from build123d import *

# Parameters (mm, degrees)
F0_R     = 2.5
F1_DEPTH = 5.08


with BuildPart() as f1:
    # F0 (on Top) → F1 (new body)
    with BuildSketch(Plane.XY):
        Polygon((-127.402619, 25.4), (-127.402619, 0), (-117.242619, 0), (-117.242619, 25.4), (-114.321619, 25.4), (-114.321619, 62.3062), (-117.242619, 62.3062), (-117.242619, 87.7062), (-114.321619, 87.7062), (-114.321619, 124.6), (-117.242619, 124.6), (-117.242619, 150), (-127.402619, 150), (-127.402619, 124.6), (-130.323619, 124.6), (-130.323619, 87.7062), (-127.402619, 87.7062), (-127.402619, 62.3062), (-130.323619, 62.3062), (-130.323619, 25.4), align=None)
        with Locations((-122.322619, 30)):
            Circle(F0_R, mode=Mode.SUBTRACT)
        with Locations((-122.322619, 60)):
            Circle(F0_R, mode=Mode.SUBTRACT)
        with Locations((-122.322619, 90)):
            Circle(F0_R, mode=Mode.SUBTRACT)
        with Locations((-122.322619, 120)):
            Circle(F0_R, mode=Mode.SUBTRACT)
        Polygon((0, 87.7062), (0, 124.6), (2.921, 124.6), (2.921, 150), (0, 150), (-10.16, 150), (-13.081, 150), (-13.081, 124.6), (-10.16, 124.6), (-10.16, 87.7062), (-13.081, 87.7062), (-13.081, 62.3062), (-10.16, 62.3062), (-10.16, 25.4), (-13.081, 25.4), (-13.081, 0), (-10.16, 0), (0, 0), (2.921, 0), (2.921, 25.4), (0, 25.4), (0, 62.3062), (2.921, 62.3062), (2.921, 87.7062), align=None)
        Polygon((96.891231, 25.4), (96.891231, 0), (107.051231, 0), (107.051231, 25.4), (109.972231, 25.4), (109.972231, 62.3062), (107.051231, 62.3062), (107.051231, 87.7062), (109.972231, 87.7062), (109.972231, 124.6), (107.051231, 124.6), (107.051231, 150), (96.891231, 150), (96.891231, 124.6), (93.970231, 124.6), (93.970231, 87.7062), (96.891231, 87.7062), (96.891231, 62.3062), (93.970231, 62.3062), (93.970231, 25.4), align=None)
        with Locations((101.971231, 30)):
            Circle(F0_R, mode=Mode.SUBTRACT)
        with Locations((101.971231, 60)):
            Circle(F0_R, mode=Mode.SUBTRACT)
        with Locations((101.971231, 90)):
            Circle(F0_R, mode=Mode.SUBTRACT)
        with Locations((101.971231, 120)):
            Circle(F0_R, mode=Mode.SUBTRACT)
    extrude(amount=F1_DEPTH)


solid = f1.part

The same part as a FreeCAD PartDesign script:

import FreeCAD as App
import Part
import Sketcher
Q = App.Units.Quantity

doc = App.newDocument("Part")
params = doc.addObject("Spreadsheet::Sheet", "Params")
for row, (alias, value) in enumerate([
    ("sketch1_height", "1 in"),
    ("sketch1_width", "0.4 in"),
    ("sketch1_width2", "0.63 in"),
    ("sketch1_height2", "1.453 in"),
    ("pad1_length", "0.2 in"),
], start=1):
    params.set(f"A{row}", alias)
    params.set(f"B{row}", "=" + value)
    params.setAlias(f"B{row}", alias)

body = doc.addObject("PartDesign::Body", "Body")
body.AllowCompound = True

# Sketch on XY plane
sketch1 = body.newObject("Sketcher::SketchObject", "Sketch")
sketch1.AttachmentSupport = (doc.getObject("XY_Plane"), [""])
sketch1.MapMode = "FlatFace"
sketch1.addGeometry(Part.LineSegment(App.Vector(-127.4, 25.4, 0), App.Vector(-127.4, 0, 0)), False)
sketch1.addGeometry(Part.LineSegment(App.Vector(-127.4, 0, 0), App.Vector(-117.2, 0, 0)), False)
sketch1.addGeometry(Part.LineSegment(App.Vector(-117.2, 0, 0), App.Vector(-117.2, 25.4, 0)), False)
sketch1.addGeometry(Part.LineSegment(App.Vector(-117.2, 25.4, 0), App.Vector(-114.3, 25.4, 0)), False)
sketch1.addGeometry(Part.LineSegment(App.Vector(-114.3, 25.4, 0), App.Vector(-114.3, 62.3, 0)), False)
sketch1.addGeometry(Part.LineSegment(App.Vector(-114.3, 62.3, 0), App.Vector(-117.2, 62.3, 0)), False)
sketch1.addGeometry(Part.LineSegment(App.Vector(-117.2, 62.3, 0), App.Vector(-117.2, 87.7, 0)), False)
sketch1.addGeometry(Part.LineSegment(App.Vector(-117.2, 87.7, 0), App.Vector(-114.3, 87.7, 0)), False)
sketch1.addGeometry(Part.LineSegment(App.Vector(-114.3, 87.7, 0), App.Vector(-114.3, 124.6, 0)), False)
sketch1.addGeometry(Part.LineSegment(App.Vector(-114.3, 124.6, 0), App.Vector(-117.2, 124.6, 0)), False)
sketch1.addGeometry(Part.LineSegment(App.Vector(-117.2, 124.6, 0), App.Vector(-117.2, 150, 0)), False)
sketch1.addGeometry(Part.LineSegment(App.Vector(-117.2, 150, 0), App.Vector(-127.4, 150, 0)), False)
sketch1.addGeometry(Part.LineSegment(App.Vector(-127.4, 150, 0), App.Vector(-127.4, 124.6, 0)), False)
sketch1.addGeometry(Part.LineSegment(App.Vector(-127.4, 124.6, 0), App.Vector(-130.3, 124.6, 0)), False)
sketch1.addGeometry(Part.LineSegment(App.Vector(-130.3, 124.6, 0), App.Vector(-130.3, 87.7, 0)), False)
sketch1.addGeometry(Part.LineSegment(App.Vector(-130.3, 87.7, 0), App.Vector(-127.4, 87.7, 0)), False)
sketch1.addGeometry(Part.LineSegment(App.Vector(-127.4, 87.7, 0), App.Vector(-127.4, 62.3, 0)), False)
sketch1.addGeometry(Part.LineSegment(App.Vector(-127.4, 62.3, 0), App.Vector(-130.3, 62.3, 0)), False)
sketch1.addGeometry(Part.LineSegment(App.Vector(-130.3, 62.3, 0), App.Vector(-130.3, 25.4, 0)), False)
sketch1.addGeometry(Part.LineSegment(App.Vector(-130.3, 25.4, 0), App.Vector(-127.4, 25.4, 0)), False)
sketch1.addGeometry(Part.Circle(App.Vector(-122.3, 30, 0), App.Vector(0, 0, 1), 2.5), False)
sketch1.addGeometry(Part.Circle(App.Vector(-122.3, 60, 0), App.Vector(0, 0, 1), 2.5), False)
sketch1.addGeometry(Part.Circle(App.Vector(-122.3, 90, 0), App.Vector(0, 0, 1), 2.5), False)
sketch1.addGeometry(Part.Circle(App.Vector(-122.3, 120, 0), App.Vector(0, 0, 1), 2.5), False)
sketch1.addGeometry(Part.LineSegment(App.Vector(0, 87.7, 0), App.Vector(0, 124.6, 0)), False)
sketch1.addGeometry(Part.LineSegment(App.Vector(0, 124.6, 0), App.Vector(2.9, 124.6, 0)), False)
sketch1.addGeometry(Part.LineSegment(App.Vector(2.9, 124.6, 0), App.Vector(2.9, 150, 0)), False)
sketch1.addGeometry(Part.LineSegment(App.Vector(2.9, 150, 0), App.Vector(-13.1, 150, 0)), False)
sketch1.addGeometry(Part.LineSegment(App.Vector(-13.1, 150, 0), App.Vector(-13.1, 124.6, 0)), False)
sketch1.addGeometry(Part.LineSegment(App.Vector(-13.1, 124.6, 0), App.Vector(-10.2, 124.6, 0)), False)
sketch1.addGeometry(Part.LineSegment(App.Vector(-10.2, 124.6, 0), App.Vector(-10.2, 87.7, 0)), False)
sketch1.addGeometry(Part.LineSegment(App.Vector(-10.2, 87.7, 0), App.Vector(-13.1, 87.7, 0)), False)
sketch1.addGeometry(Part.LineSegment(App.Vector(-13.1, 87.7, 0), App.Vector(-13.1, 62.3, 0)), False)
sketch1.addGeometry(Part.LineSegment(App.Vector(-13.1, 62.3, 0), App.Vector(-10.2, 62.3, 0)), False)
sketch1.addGeometry(Part.LineSegment(App.Vector(-10.2, 62.3, 0), App.Vector(-10.2, 25.4, 0)), False)
sketch1.addGeometry(Part.LineSegment(App.Vector(-10.2, 25.4, 0), App.Vector(-13.1, 25.4, 0)), False)
sketch1.addGeometry(Part.LineSegment(App.Vector(-13.1, 25.4, 0), App.Vector(-13.1, 0, 0)), False)
sketch1.addGeometry(Part.LineSegment(App.Vector(-13.1, 0, 0), App.Vector(2.9, 0, 0)), False)
sketch1.addGeometry(Part.LineSegment(App.Vector(2.9, 0, 0), App.Vector(2.9, 25.4, 0)), False)
sketch1.addGeometry(Part.LineSegment(App.Vector(2.9, 25.4, 0), App.Vector(0, 25.4, 0)), False)
sketch1.addGeometry(Part.LineSegment(App.Vector(0, 25.4, 0), App.Vector(0, 62.3, 0)), False)
sketch1.addGeometry(Part.LineSegment(App.Vector(0, 62.3, 0), App.Vector(2.9, 62.3, 0)), False)
sketch1.addGeometry(Part.LineSegment(App.Vector(2.9, 62.3, 0), App.Vector(2.9, 87.7, 0)), False)
sketch1.addGeometry(Part.LineSegment(App.Vector(2.9, 87.7, 0), App.Vector(0, 87.7, 0)), False)
sketch1.addGeometry(Part.LineSegment(App.Vector(96.9, 25.4, 0), App.Vector(96.9, 0, 0)), False)
sketch1.addGeometry(Part.LineSegment(App.Vector(96.9, 0, 0), App.Vector(107.1, 0, 0)), False)
sketch1.addGeometry(Part.LineSegment(App.Vector(107.1, 0, 0), App.Vector(107.1, 25.4, 0)), False)
sketch1.addGeometry(Part.LineSegment(App.Vector(107.1, 25.4, 0), App.Vector(110, 25.4, 0)), False)
sketch1.addGeometry(Part.LineSegment(App.Vector(110, 25.4, 0), App.Vector(110, 62.3, 0)), False)
sketch1.addGeometry(Part.LineSegment(App.Vector(110, 62.3, 0), App.Vector(107.1, 62.3, 0)), False)
sketch1.addGeometry(Part.LineSegment(App.Vector(107.1, 62.3, 0), App.Vector(107.1, 87.7, 0)), False)
sketch1.addGeometry(Part.LineSegment(App.Vector(107.1, 87.7, 0), App.Vector(110, 87.7, 0)), False)
sketch1.addGeometry(Part.LineSegment(App.Vector(110, 87.7, 0), App.Vector(110, 124.6, 0)), False)
sketch1.addGeometry(Part.LineSegment(App.Vector(110, 124.6, 0), App.Vector(107.1, 124.6, 0)), False)
sketch1.addGeometry(Part.LineSegment(App.Vector(107.1, 124.6, 0), App.Vector(107.1, 150, 0)), False)
sketch1.addGeometry(Part.LineSegment(App.Vector(107.1, 150, 0), App.Vector(96.9, 150, 0)), False)
sketch1.addGeometry(Part.LineSegment(App.Vector(96.9, 150, 0), App.Vector(96.9, 124.6, 0)), False)
sketch1.addGeometry(Part.LineSegment(App.Vector(96.9, 124.6, 0), App.Vector(94, 124.6, 0)), False)
sketch1.addGeometry(Part.LineSegment(App.Vector(94, 124.6, 0), App.Vector(94, 87.7, 0)), False)
sketch1.addGeometry(Part.LineSegment(App.Vector(94, 87.7, 0), App.Vector(96.9, 87.7, 0)), False)
sketch1.addGeometry(Part.LineSegment(App.Vector(96.9, 87.7, 0), App.Vector(96.9, 62.3, 0)), False)
sketch1.addGeometry(Part.LineSegment(App.Vector(96.9, 62.3, 0), App.Vector(94, 62.3, 0)), False)
sketch1.addGeometry(Part.LineSegment(App.Vector(94, 62.3, 0), App.Vector(94, 25.4, 0)), False)
sketch1.addGeometry(Part.LineSegment(App.Vector(94, 25.4, 0), App.Vector(96.9, 25.4, 0)), False)
sketch1.addGeometry(Part.Circle(App.Vector(102, 30, 0), App.Vector(0, 0, 1), 2.5), False)
sketch1.addGeometry(Part.Circle(App.Vector(102, 60, 0), App.Vector(0, 0, 1), 2.5), False)
sketch1.addGeometry(Part.Circle(App.Vector(102, 90, 0), App.Vector(0, 0, 1), 2.5), False)
sketch1.addGeometry(Part.Circle(App.Vector(102, 120, 0), App.Vector(0, 0, 1), 2.5), False)
sketch1.addConstraint(Sketcher.Constraint("Coincident", 0, 2, 1, 1))
sketch1.addConstraint(Sketcher.Constraint("Coincident", 1, 2, 2, 1))
sketch1.addConstraint(Sketcher.Constraint("Coincident", 2, 2, 3, 1))
sketch1.addConstraint(Sketcher.Constraint("Coincident", 3, 2, 4, 1))
sketch1.addConstraint(Sketcher.Constraint("Coincident", 4, 2, 5, 1))
sketch1.addConstraint(Sketcher.Constraint("Coincident", 5, 2, 6, 1))
sketch1.addConstraint(Sketcher.Constraint("Coincident", 6, 2, 7, 1))
sketch1.addConstraint(Sketcher.Constraint("Coincident", 7, 2, 8, 1))
sketch1.addConstraint(Sketcher.Constraint("Coincident", 8, 2, 9, 1))
sketch1.addConstraint(Sketcher.Constraint("Coincident", 9, 2, 10, 1))
sketch1.addConstraint(Sketcher.Constraint("Coincident", 10, 2, 11, 1))
sketch1.addConstraint(Sketcher.Constraint("Coincident", 11, 2, 12, 1))
sketch1.addConstraint(Sketcher.Constraint("Coincident", 12, 2, 13, 1))
sketch1.addConstraint(Sketcher.Constraint("Coincident", 13, 2, 14, 1))
sketch1.addConstraint(Sketcher.Constraint("Coincident", 14, 2, 15, 1))
sketch1.addConstraint(Sketcher.Constraint("Coincident", 15, 2, 16, 1))
sketch1.addConstraint(Sketcher.Constraint("Coincident", 16, 2, 17, 1))
sketch1.addConstraint(Sketcher.Constraint("Coincident", 17, 2, 18, 1))
sketch1.addConstraint(Sketcher.Constraint("Coincident", 18, 2, 19, 1))
sketch1.addConstraint(Sketcher.Constraint("Coincident", 19, 2, 0, 1))
sketch1.addConstraint(Sketcher.Constraint("Coincident", 24, 2, 25, 1))
sketch1.addConstraint(Sketcher.Constraint("Coincident", 25, 2, 26, 1))
sketch1.addConstraint(Sketcher.Constraint("Coincident", 26, 2, 27, 1))
sketch1.addConstraint(Sketcher.Constraint("Coincident", 27, 2, 28, 1))
sketch1.addConstraint(Sketcher.Constraint("Coincident", 28, 2, 29, 1))
sketch1.addConstraint(Sketcher.Constraint("Coincident", 29, 2, 30, 1))
sketch1.addConstraint(Sketcher.Constraint("Coincident", 30, 2, 31, 1))
sketch1.addConstraint(Sketcher.Constraint("Coincident", 31, 2, 32, 1))
sketch1.addConstraint(Sketcher.Constraint("Coincident", 32, 2, 33, 1))
sketch1.addConstraint(Sketcher.Constraint("Coincident", 33, 2, 34, 1))
sketch1.addConstraint(Sketcher.Constraint("Coincident", 34, 2, 35, 1))
sketch1.addConstraint(Sketcher.Constraint("Coincident", 35, 2, 36, 1))
sketch1.addConstraint(Sketcher.Constraint("Coincident", 36, 2, 37, 1))
sketch1.addConstraint(Sketcher.Constraint("Coincident", 37, 2, 38, 1))
sketch1.addConstraint(Sketcher.Constraint("Coincident", 38, 2, 39, 1))
sketch1.addConstraint(Sketcher.Constraint("Coincident", 39, 2, 40, 1))
sketch1.addConstraint(Sketcher.Constraint("Coincident", 40, 2, 41, 1))
sketch1.addConstraint(Sketcher.Constraint("Coincident", 41, 2, 42, 1))
sketch1.addConstraint(Sketcher.Constraint("Coincident", 42, 2, 43, 1))
sketch1.addConstraint(Sketcher.Constraint("Coincident", 43, 2, 24, 1))
sketch1.addConstraint(Sketcher.Constraint("Coincident", 44, 2, 45, 1))
sketch1.addConstraint(Sketcher.Constraint("Coincident", 45, 2, 46, 1))
sketch1.addConstraint(Sketcher.Constraint("Coincident", 46, 2, 47, 1))
sketch1.addConstraint(Sketcher.Constraint("Coincident", 47, 2, 48, 1))
sketch1.addConstraint(Sketcher.Constraint("Coincident", 48, 2, 49, 1))
sketch1.addConstraint(Sketcher.Constraint("Coincident", 49, 2, 50, 1))
sketch1.addConstraint(Sketcher.Constraint("Coincident", 50, 2, 51, 1))
sketch1.addConstraint(Sketcher.Constraint("Coincident", 51, 2, 52, 1))
sketch1.addConstraint(Sketcher.Constraint("Coincident", 52, 2, 53, 1))
sketch1.addConstraint(Sketcher.Constraint("Coincident", 53, 2, 54, 1))
sketch1.addConstraint(Sketcher.Constraint("Coincident", 54, 2, 55, 1))
sketch1.addConstraint(Sketcher.Constraint("Coincident", 55, 2, 56, 1))
sketch1.addConstraint(Sketcher.Constraint("Coincident", 56, 2, 57, 1))
sketch1.addConstraint(Sketcher.Constraint("Coincident", 57, 2, 58, 1))
sketch1.addConstraint(Sketcher.Constraint("Coincident", 58, 2, 59, 1))
sketch1.addConstraint(Sketcher.Constraint("Coincident", 59, 2, 60, 1))
sketch1.addConstraint(Sketcher.Constraint("Coincident", 60, 2, 61, 1))
sketch1.addConstraint(Sketcher.Constraint("Coincident", 61, 2, 62, 1))
sketch1.addConstraint(Sketcher.Constraint("Coincident", 62, 2, 63, 1))
sketch1.addConstraint(Sketcher.Constraint("Coincident", 63, 2, 44, 1))
sketch1.addConstraint(Sketcher.Constraint("Vertical", 0))
sketch1.addConstraint(Sketcher.Constraint("Horizontal", 1))
sketch1.addConstraint(Sketcher.Constraint("Vertical", 2))
sketch1.addConstraint(Sketcher.Constraint("Horizontal", 3))
sketch1.addConstraint(Sketcher.Constraint("Vertical", 4))
sketch1.addConstraint(Sketcher.Constraint("Horizontal", 5))
sketch1.addConstraint(Sketcher.Constraint("Vertical", 6))
sketch1.addConstraint(Sketcher.Constraint("Horizontal", 7))
sketch1.addConstraint(Sketcher.Constraint("Vertical", 8))
sketch1.addConstraint(Sketcher.Constraint("Horizontal", 9))
sketch1.addConstraint(Sketcher.Constraint("Vertical", 10))
sketch1.addConstraint(Sketcher.Constraint("Horizontal", 11))
sketch1.addConstraint(Sketcher.Constraint("Vertical", 12))
sketch1.addConstraint(Sketcher.Constraint("Horizontal", 13))
sketch1.addConstraint(Sketcher.Constraint("Vertical", 14))
sketch1.addConstraint(Sketcher.Constraint("Horizontal", 15))
sketch1.addConstraint(Sketcher.Constraint("Vertical", 16))
sketch1.addConstraint(Sketcher.Constraint("Horizontal", 17))
sketch1.addConstraint(Sketcher.Constraint("Vertical", 18))
sketch1.addConstraint(Sketcher.Constraint("Horizontal", 19))
sketch1.addConstraint(Sketcher.Constraint("Vertical", 24))
sketch1.addConstraint(Sketcher.Constraint("Horizontal", 25))
sketch1.addConstraint(Sketcher.Constraint("Vertical", 26))
sketch1.addConstraint(Sketcher.Constraint("Horizontal", 27))
sketch1.addConstraint(Sketcher.Constraint("Vertical", 28))
sketch1.addConstraint(Sketcher.Constraint("Horizontal", 29))
sketch1.addConstraint(Sketcher.Constraint("Vertical", 30))
sketch1.addConstraint(Sketcher.Constraint("Horizontal", 31))
sketch1.addConstraint(Sketcher.Constraint("Vertical", 32))
sketch1.addConstraint(Sketcher.Constraint("Horizontal", 33))
sketch1.addConstraint(Sketcher.Constraint("Vertical", 34))
sketch1.addConstraint(Sketcher.Constraint("Horizontal", 35))
sketch1.addConstraint(Sketcher.Constraint("Vertical", 36))
sketch1.addConstraint(Sketcher.Constraint("Horizontal", 37))
sketch1.addConstraint(Sketcher.Constraint("Vertical", 38))
sketch1.addConstraint(Sketcher.Constraint("Horizontal", 39))
sketch1.addConstraint(Sketcher.Constraint("Vertical", 40))
sketch1.addConstraint(Sketcher.Constraint("Horizontal", 41))
sketch1.addConstraint(Sketcher.Constraint("Vertical", 42))
sketch1.addConstraint(Sketcher.Constraint("Horizontal", 43))
sketch1.addConstraint(Sketcher.Constraint("Vertical", 44))
sketch1.addConstraint(Sketcher.Constraint("Horizontal", 45))
sketch1.addConstraint(Sketcher.Constraint("Vertical", 46))
sketch1.addConstraint(Sketcher.Constraint("Horizontal", 47))
sketch1.addConstraint(Sketcher.Constraint("Vertical", 48))
sketch1.addConstraint(Sketcher.Constraint("Horizontal", 49))
sketch1.addConstraint(Sketcher.Constraint("Vertical", 50))
sketch1.addConstraint(Sketcher.Constraint("Horizontal", 51))
sketch1.addConstraint(Sketcher.Constraint("Vertical", 52))
sketch1.addConstraint(Sketcher.Constraint("Horizontal", 53))
sketch1.addConstraint(Sketcher.Constraint("Vertical", 54))
sketch1.addConstraint(Sketcher.Constraint("Horizontal", 55))
sketch1.addConstraint(Sketcher.Constraint("Vertical", 56))
sketch1.addConstraint(Sketcher.Constraint("Horizontal", 57))
sketch1.addConstraint(Sketcher.Constraint("Vertical", 58))
sketch1.addConstraint(Sketcher.Constraint("Horizontal", 59))
sketch1.addConstraint(Sketcher.Constraint("Vertical", 60))
sketch1.addConstraint(Sketcher.Constraint("Horizontal", 61))
sketch1.addConstraint(Sketcher.Constraint("Vertical", 62))
sketch1.addConstraint(Sketcher.Constraint("Horizontal", 63))
sketch1.addConstraint(Sketcher.Constraint("Equal", 20, 21))
sketch1.addConstraint(Sketcher.Constraint("Equal", 21, 22))
sketch1.addConstraint(Sketcher.Constraint("Equal", 22, 23))
sketch1.addConstraint(Sketcher.Constraint("Equal", 23, 64))
sketch1.addConstraint(Sketcher.Constraint("Equal", 64, 65))
sketch1.addConstraint(Sketcher.Constraint("Equal", 65, 66))
sketch1.addConstraint(Sketcher.Constraint("Equal", 66, 67))
sketch1.addConstraint(Sketcher.Constraint("PointOnObject", 0, 2, -1))
sketch1.addConstraint(Sketcher.Constraint("PointOnObject", 24, 2, -2))
sketch1.addConstraint(Sketcher.Constraint("PointOnObject", 36, 2, -1))
sketch1.addConstraint(Sketcher.Constraint("PointOnObject", 39, 2, -2))
sketch1.addConstraint(Sketcher.Constraint("PointOnObject", 44, 2, -1))
sketch1.addConstraint(Sketcher.Constraint("Horizontal", 20, 3, 64, 3))
sketch1.addConstraint(Sketcher.Constraint("Horizontal", 21, 3, 65, 3))
sketch1.addConstraint(Sketcher.Constraint("Horizontal", 22, 3, 66, 3))
sketch1.addConstraint(Sketcher.Constraint("Horizontal", 23, 3, 67, 3))
sketch1.addConstraint(Sketcher.Constraint("Horizontal", 9, 2, 12, 2))
sketch1.addConstraint(Sketcher.Constraint("Horizontal", 7, 2, 14, 2))
sketch1.addConstraint(Sketcher.Constraint("Horizontal", 5, 2, 16, 2))
sketch1.addConstraint(Sketcher.Constraint("Horizontal", 3, 2, 18, 2))
sketch1.addConstraint(Sketcher.Constraint("Horizontal", 13, 2, 24, 2))
sketch1.addConstraint(Sketcher.Constraint("Horizontal", 11, 2, 26, 2))
sketch1.addConstraint(Sketcher.Constraint("Horizontal", 25, 2, 28, 2))
sketch1.addConstraint(Sketcher.Constraint("Horizontal", 15, 2, 30, 2))
sketch1.addConstraint(Sketcher.Constraint("Horizontal", 17, 2, 32, 2))
sketch1.addConstraint(Sketcher.Constraint("Horizontal", 19, 2, 34, 2))
sketch1.addConstraint(Sketcher.Constraint("Horizontal", 35, 2, 38, 2))
sketch1.addConstraint(Sketcher.Constraint("Horizontal", 33, 2, 40, 2))
sketch1.addConstraint(Sketcher.Constraint("Horizontal", 31, 2, 42, 2))
sketch1.addConstraint(Sketcher.Constraint("Horizontal", 39, 2, 46, 2))
sketch1.addConstraint(Sketcher.Constraint("Horizontal", 41, 2, 48, 2))
sketch1.addConstraint(Sketcher.Constraint("Horizontal", 43, 2, 50, 2))
sketch1.addConstraint(Sketcher.Constraint("Horizontal", 29, 2, 52, 2))
sketch1.addConstraint(Sketcher.Constraint("Horizontal", 27, 2, 54, 2))
sketch1.addConstraint(Sketcher.Constraint("Horizontal", 53, 2, 56, 2))
sketch1.addConstraint(Sketcher.Constraint("Horizontal", 51, 2, 58, 2))
sketch1.addConstraint(Sketcher.Constraint("Horizontal", 49, 2, 60, 2))
sketch1.addConstraint(Sketcher.Constraint("Horizontal", 47, 2, 62, 2))
sketch1.addConstraint(Sketcher.Constraint("Vertical", 20, 3, 21, 3))
sketch1.addConstraint(Sketcher.Constraint("Vertical", 21, 3, 22, 3))
sketch1.addConstraint(Sketcher.Constraint("Vertical", 22, 3, 23, 3))
sketch1.addConstraint(Sketcher.Constraint("Vertical", 64, 3, 65, 3))
sketch1.addConstraint(Sketcher.Constraint("Vertical", 65, 3, 66, 3))
sketch1.addConstraint(Sketcher.Constraint("Vertical", 66, 3, 67, 3))
sketch1.addConstraint(Sketcher.Constraint("Vertical", 2, 2, 5, 2))
sketch1.addConstraint(Sketcher.Constraint("Vertical", 4, 2, 7, 2))
sketch1.addConstraint(Sketcher.Constraint("Vertical", 6, 2, 9, 2))
sketch1.addConstraint(Sketcher.Constraint("Vertical", 0, 2, 11, 2))
sketch1.addConstraint(Sketcher.Constraint("Vertical", 12, 2, 15, 2))
sketch1.addConstraint(Sketcher.Constraint("Vertical", 14, 2, 17, 2))
sketch1.addConstraint(Sketcher.Constraint("Vertical", 28, 2, 31, 2))
sketch1.addConstraint(Sketcher.Constraint("Vertical", 30, 2, 33, 2))
sketch1.addConstraint(Sketcher.Constraint("Vertical", 32, 2, 35, 2))
sketch1.addConstraint(Sketcher.Constraint("Vertical", 26, 2, 37, 2))
sketch1.addConstraint(Sketcher.Constraint("Vertical", 38, 2, 41, 2))
sketch1.addConstraint(Sketcher.Constraint("Vertical", 46, 2, 49, 2))
sketch1.addConstraint(Sketcher.Constraint("Vertical", 48, 2, 51, 2))
sketch1.addConstraint(Sketcher.Constraint("Vertical", 50, 2, 53, 2))
sketch1.addConstraint(Sketcher.Constraint("Vertical", 44, 2, 55, 2))
sketch1.addConstraint(Sketcher.Constraint("Vertical", 56, 2, 59, 2))
sketch1.addConstraint(Sketcher.Constraint("Vertical", 58, 2, 61, 2))
sketch1.addConstraint(Sketcher.Constraint("Equal", 9, 13))
sketch1.addConstraint(Sketcher.Constraint("Equal", 19, 25))
sketch1.addConstraint(Sketcher.Constraint("Equal", 25, 29))
sketch1.addConstraint(Sketcher.Constraint("Equal", 11, 45))
sketch1.addConstraint(Sketcher.Constraint("Equal", 43, 47))
sketch1.addConstraint(Sketcher.Constraint("Equal", 53, 57))
sketch1.addConstraint(Sketcher.Constraint("Equal", 2, 6))
sketch1.addConstraint(Sketcher.Constraint("Equal", 6, 10))
sketch1.addConstraint(Sketcher.Constraint("DistanceY", 0, 2, 0, 1, Q("1 in")))
sketch1.addConstraint(Sketcher.Constraint("DistanceX", 1, 1, 1, 2, Q("0.4 in")))
sketch1.addConstraint(Sketcher.Constraint("DistanceX", 27, 2, 27, 1, Q("0.63 in")))
sketch1.addConstraint(Sketcher.Constraint("DistanceX", 29, 2, -1, 1, Q("0.4 in")))
sketch1.addConstraint(Sketcher.Constraint("Diameter", 20, Q("5 mm")))
sketch1.addConstraint(Sketcher.Constraint("DistanceY", 4, 1, 4, 2, Q("1.453 in")))
sketch1.addConstraint(Sketcher.Constraint("DistanceY", 8, 1, 8, 2, Q("36.8938 mm")))
sketch1.addConstraint(Sketcher.Constraint("DistanceY", -1, 1, 20, 3, Q("30 mm")))
sketch1.addConstraint(Sketcher.Constraint("DistanceY", -1, 1, 21, 3, Q("60 mm")))
sketch1.addConstraint(Sketcher.Constraint("DistanceY", -1, 1, 22, 3, Q("90 mm")))
sketch1.addConstraint(Sketcher.Constraint("DistanceY", -1, 1, 23, 3, Q("120 mm")))
sketch1.addConstraint(Sketcher.Constraint("DistanceX", 20, 3, -1, 1, Q("122.322619 mm")))
sketch1.addConstraint(Sketcher.Constraint("DistanceX", -1, 1, 64, 3, Q("101.971231 mm")))
sketch1.addConstraint(Sketcher.Constraint("DistanceX", 0, 2, -1, 1, Q("127.402619 mm")))
sketch1.addConstraint(Sketcher.Constraint("DistanceX", -1, 1, 44, 2, Q("96.891231 mm")))
sketch1.setExpression("Constraints[189]", "Params.sketch1_height")
sketch1.setExpression("Constraints[190]", "Params.sketch1_width")
sketch1.setExpression("Constraints[191]", "Params.sketch1_width2")
sketch1.setExpression("Constraints[194]", "Params.sketch1_height2")
pad1 = body.newObject("PartDesign::Pad", "Pad")
pad1.Profile = sketch1
pad1.setExpression("Length", "Params.pad1_length")

doc.recompute()
